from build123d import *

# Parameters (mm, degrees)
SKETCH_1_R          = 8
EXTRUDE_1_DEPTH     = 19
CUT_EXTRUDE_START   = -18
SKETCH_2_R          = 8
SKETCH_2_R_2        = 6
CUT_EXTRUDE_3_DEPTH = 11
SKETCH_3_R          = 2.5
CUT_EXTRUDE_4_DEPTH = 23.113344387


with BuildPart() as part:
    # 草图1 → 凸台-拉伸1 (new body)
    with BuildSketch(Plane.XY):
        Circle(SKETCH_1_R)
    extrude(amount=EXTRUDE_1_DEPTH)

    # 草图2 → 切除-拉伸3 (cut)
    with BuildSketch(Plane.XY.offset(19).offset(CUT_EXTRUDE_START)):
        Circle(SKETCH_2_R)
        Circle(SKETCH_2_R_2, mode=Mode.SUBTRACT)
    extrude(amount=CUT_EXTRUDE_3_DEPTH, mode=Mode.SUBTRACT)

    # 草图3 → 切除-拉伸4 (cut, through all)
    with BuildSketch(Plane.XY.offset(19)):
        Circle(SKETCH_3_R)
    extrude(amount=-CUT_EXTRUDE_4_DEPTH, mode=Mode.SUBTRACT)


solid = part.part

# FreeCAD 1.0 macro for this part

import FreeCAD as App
import Part
import Sketcher
Q = App.Units.Quantity

doc = App.newDocument("Part")
body = doc.addObject("PartDesign::Body", "Body")

# Sketch on XY plane
sketch1 = body.newObject("Sketcher::SketchObject", "Sketch")
sketch1.AttachmentSupport = (doc.getObject("XY_Plane"), [""])
sketch1.MapMode = "FlatFace"
sketch1.addGeometry(Part.Circle(App.Vector(0, 0, 0), App.Vector(0, 0, 1), 8), False)
sketch1.addConstraint([
    Sketcher.Constraint("Coincident", 0, 3, -1, 1),
    Sketcher.Constraint("Diameter", 0, Q("16 mm")),
])
pad1 = body.newObject("PartDesign::Pad", "Pad")
pad1.Profile = sketch1
pad1.Length = 19

# Sketch on XY plane
sketch2 = body.newObject("Sketcher::SketchObject", "Sketch001")
sketch2.AttachmentSupport = (doc.getObject("XY_Plane"), [""])
sketch2.MapMode = "FlatFace"
sketch2.AttachmentOffset = App.Placement(App.Vector(0, 0, 1), App.Rotation())
sketch2.addGeometry([
    Part.Circle(App.Vector(0, 0, 0), App.Vector(0, 0, 1), 8),
    Part.Circle(App.Vector(0, 0, 0), App.Vector(0, 0, 1), 6),
], False)
sketch2.addConstraint([
    Sketcher.Constraint("Coincident", 0, 3, -1, 1),
    Sketcher.Constraint("Coincident", 1, 3, -1, 1),
    Sketcher.Constraint("Diameter", 0, Q("16 mm")),
    Sketcher.Constraint("Diameter", 1, Q("12 mm")),
])
pocket1 = body.newObject("PartDesign::Pocket", "Pocket")
pocket1.Profile = sketch2
pocket1.Length = 11
pocket1.Reversed = True

# Sketch on XY plane
sketch3 = body.newObject("Sketcher::SketchObject", "Sketch002")
sketch3.AttachmentSupport = (doc.getObject("XY_Plane"), [""])
sketch3.MapMode = "FlatFace"
sketch3.AttachmentOffset = App.Placement(App.Vector(0, 0, 19), App.Rotation())
sketch3.addGeometry(Part.Circle(App.Vector(0, 0, 0), App.Vector(0, 0, 1), 2.5), False)
sketch3.addConstraint([
    Sketcher.Constraint("Coincident", 0, 3, -1, 1),
    Sketcher.Constraint("Diameter", 0, Q("5 mm")),
])
pocket2 = body.newObject("PartDesign::Pocket", "Pocket001")
pocket2.Profile = sketch3
pocket2.Type = "ThroughAll"

doc.recompute()
